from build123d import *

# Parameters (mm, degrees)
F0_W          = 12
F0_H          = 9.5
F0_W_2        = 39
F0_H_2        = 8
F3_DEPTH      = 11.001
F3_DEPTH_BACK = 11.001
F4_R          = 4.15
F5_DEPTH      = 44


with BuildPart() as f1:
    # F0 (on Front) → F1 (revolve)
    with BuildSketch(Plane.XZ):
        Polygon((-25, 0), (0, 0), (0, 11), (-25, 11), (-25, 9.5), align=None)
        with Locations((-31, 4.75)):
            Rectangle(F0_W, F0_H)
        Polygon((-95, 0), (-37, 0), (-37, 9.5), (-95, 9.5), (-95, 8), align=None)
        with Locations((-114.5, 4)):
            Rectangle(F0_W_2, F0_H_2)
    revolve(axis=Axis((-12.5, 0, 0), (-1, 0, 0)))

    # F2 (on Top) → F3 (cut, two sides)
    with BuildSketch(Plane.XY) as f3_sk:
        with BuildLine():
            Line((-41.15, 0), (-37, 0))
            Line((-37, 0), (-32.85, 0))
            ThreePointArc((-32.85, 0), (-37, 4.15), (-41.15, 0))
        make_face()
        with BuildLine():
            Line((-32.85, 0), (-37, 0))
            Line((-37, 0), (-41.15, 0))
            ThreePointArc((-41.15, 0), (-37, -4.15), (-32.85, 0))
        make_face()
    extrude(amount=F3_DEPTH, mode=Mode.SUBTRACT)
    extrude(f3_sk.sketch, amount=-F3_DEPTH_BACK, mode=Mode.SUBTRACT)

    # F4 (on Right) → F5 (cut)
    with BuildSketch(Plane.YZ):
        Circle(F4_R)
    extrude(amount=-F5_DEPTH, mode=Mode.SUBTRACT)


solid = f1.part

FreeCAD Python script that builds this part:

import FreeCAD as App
import Part
import Sketcher
from FreeCAD import Vector


def add_polygon(sketch, points):
    """Adds a closed chain of lines whose ends are joined by coincident constraints."""
    first, n = sketch.GeometryCount, len(points)
    for a, b in zip(points, points[1:] + points[:1]):
        sketch.addGeometry(Part.LineSegment(App.Vector(*a, 0), App.Vector(*b, 0)), False)
    for i in range(n):
        sketch.addConstraint(Sketcher.Constraint("Coincident", first + i, 2, first + (i + 1) % n, 1))

doc = App.newDocument("Part")
body = doc.addObject("PartDesign::Body", "Body")

# Sketch on XZ plane
sketch1 = body.newObject("Sketcher::SketchObject", "Sketch")
sketch1.AttachmentSupport = (doc.getObject("XZ_Plane"), [""])
sketch1.MapMode = "FlatFace"
add_polygon(sketch1, [(0, 0), (0, 11), (-25, 11), (-25, 9.5), (-95, 9.5), (-95, 8), (-134, 8), (-134, 0)])  # lines 0-7
sketch1.addConstraint(Sketcher.Constraint("Vertical", 0))
sketch1.addConstraint(Sketcher.Constraint("Horizontal", 1))
sketch1.addConstraint(Sketcher.Constraint("Vertical", 2))
sketch1.addConstraint(Sketcher.Constraint("Horizontal", 3))
sketch1.addConstraint(Sketcher.Constraint("Vertical", 4))
sketch1.addConstraint(Sketcher.Constraint("Horizontal", 5))
sketch1.addConstraint(Sketcher.Constraint("Vertical", 6))
sketch1.addConstraint(Sketcher.Constraint("Horizontal", 7))
sketch1.addConstraint(Sketcher.Constraint("Coincident", 7, 2, -1, 1))
sketch1.addConstraint(Sketcher.Constraint("Equal", 2, 4))
sketch1.addConstraint(Sketcher.Constraint("DistanceX", 1, 2, 1, 1, 25.0))
sketch1.addConstraint(Sketcher.Constraint("DistanceX", 3, 2, 3, 1, 70.0))
sketch1.addConstraint(Sketcher.Constraint("DistanceX", 5, 2, 5, 1, 39.0))
sketch1.addConstraint(Sketcher.Constraint("DistanceY", 0, 1, 0, 2, 11.0))
sketch1.addConstraint(Sketcher.Constraint("DistanceY", 6, 2, 6, 1, 8.0))
revolution = body.newObject("PartDesign::Revolution", "Revolution")
revolution.Profile = sketch1
revolution.ReferenceAxis = (sketch1, ["H_Axis"])
revolution.Angle = 360

# Sketch on XY plane
sketch2 = body.newObject("Sketcher::SketchObject", "Sketch001")
sketch2.AttachmentSupport = (doc.getObject("XY_Plane"), [""])
sketch2.MapMode = "FlatFace"
sketch2.addGeometry(Part.Circle(Vector(-37, 0, 0), Vector(0, 0, 1), 4.2), False)
sketch2.addConstraint(Sketcher.Constraint("PointOnObject", 0, 3, -1))
sketch2.addConstraint(Sketcher.Constraint("Diameter", 0, 8.3))
sketch2.addConstraint(Sketcher.Constraint("DistanceX", 0, 3, -1, 1, 37.0))
pocket1 = body.newObject("PartDesign::Pocket", "Pocket")
pocket1.Profile = sketch2
pocket1.Type = "ThroughAll"
pocket1.Midplane = True

# Sketch on YZ plane
sketch3 = body.newObject("Sketcher::SketchObject", "Sketch002")
sketch3.AttachmentSupport = (doc.getObject("YZ_Plane"), [""])
sketch3.MapMode = "FlatFace"
sketch3.addGeometry(Part.Circle(Vector(0, 0, 0), Vector(0, 0, 1), 4.2), False)
sketch3.addConstraint(Sketcher.Constraint("Coincident", 0, 3, -1, 1))
sketch3.addConstraint(Sketcher.Constraint("Diameter", 0, 8.3))
pocket2 = body.newObject("PartDesign::Pocket", "Pocket001")
pocket2.Profile = sketch3
pocket2.Length = 44

doc.recompute()
